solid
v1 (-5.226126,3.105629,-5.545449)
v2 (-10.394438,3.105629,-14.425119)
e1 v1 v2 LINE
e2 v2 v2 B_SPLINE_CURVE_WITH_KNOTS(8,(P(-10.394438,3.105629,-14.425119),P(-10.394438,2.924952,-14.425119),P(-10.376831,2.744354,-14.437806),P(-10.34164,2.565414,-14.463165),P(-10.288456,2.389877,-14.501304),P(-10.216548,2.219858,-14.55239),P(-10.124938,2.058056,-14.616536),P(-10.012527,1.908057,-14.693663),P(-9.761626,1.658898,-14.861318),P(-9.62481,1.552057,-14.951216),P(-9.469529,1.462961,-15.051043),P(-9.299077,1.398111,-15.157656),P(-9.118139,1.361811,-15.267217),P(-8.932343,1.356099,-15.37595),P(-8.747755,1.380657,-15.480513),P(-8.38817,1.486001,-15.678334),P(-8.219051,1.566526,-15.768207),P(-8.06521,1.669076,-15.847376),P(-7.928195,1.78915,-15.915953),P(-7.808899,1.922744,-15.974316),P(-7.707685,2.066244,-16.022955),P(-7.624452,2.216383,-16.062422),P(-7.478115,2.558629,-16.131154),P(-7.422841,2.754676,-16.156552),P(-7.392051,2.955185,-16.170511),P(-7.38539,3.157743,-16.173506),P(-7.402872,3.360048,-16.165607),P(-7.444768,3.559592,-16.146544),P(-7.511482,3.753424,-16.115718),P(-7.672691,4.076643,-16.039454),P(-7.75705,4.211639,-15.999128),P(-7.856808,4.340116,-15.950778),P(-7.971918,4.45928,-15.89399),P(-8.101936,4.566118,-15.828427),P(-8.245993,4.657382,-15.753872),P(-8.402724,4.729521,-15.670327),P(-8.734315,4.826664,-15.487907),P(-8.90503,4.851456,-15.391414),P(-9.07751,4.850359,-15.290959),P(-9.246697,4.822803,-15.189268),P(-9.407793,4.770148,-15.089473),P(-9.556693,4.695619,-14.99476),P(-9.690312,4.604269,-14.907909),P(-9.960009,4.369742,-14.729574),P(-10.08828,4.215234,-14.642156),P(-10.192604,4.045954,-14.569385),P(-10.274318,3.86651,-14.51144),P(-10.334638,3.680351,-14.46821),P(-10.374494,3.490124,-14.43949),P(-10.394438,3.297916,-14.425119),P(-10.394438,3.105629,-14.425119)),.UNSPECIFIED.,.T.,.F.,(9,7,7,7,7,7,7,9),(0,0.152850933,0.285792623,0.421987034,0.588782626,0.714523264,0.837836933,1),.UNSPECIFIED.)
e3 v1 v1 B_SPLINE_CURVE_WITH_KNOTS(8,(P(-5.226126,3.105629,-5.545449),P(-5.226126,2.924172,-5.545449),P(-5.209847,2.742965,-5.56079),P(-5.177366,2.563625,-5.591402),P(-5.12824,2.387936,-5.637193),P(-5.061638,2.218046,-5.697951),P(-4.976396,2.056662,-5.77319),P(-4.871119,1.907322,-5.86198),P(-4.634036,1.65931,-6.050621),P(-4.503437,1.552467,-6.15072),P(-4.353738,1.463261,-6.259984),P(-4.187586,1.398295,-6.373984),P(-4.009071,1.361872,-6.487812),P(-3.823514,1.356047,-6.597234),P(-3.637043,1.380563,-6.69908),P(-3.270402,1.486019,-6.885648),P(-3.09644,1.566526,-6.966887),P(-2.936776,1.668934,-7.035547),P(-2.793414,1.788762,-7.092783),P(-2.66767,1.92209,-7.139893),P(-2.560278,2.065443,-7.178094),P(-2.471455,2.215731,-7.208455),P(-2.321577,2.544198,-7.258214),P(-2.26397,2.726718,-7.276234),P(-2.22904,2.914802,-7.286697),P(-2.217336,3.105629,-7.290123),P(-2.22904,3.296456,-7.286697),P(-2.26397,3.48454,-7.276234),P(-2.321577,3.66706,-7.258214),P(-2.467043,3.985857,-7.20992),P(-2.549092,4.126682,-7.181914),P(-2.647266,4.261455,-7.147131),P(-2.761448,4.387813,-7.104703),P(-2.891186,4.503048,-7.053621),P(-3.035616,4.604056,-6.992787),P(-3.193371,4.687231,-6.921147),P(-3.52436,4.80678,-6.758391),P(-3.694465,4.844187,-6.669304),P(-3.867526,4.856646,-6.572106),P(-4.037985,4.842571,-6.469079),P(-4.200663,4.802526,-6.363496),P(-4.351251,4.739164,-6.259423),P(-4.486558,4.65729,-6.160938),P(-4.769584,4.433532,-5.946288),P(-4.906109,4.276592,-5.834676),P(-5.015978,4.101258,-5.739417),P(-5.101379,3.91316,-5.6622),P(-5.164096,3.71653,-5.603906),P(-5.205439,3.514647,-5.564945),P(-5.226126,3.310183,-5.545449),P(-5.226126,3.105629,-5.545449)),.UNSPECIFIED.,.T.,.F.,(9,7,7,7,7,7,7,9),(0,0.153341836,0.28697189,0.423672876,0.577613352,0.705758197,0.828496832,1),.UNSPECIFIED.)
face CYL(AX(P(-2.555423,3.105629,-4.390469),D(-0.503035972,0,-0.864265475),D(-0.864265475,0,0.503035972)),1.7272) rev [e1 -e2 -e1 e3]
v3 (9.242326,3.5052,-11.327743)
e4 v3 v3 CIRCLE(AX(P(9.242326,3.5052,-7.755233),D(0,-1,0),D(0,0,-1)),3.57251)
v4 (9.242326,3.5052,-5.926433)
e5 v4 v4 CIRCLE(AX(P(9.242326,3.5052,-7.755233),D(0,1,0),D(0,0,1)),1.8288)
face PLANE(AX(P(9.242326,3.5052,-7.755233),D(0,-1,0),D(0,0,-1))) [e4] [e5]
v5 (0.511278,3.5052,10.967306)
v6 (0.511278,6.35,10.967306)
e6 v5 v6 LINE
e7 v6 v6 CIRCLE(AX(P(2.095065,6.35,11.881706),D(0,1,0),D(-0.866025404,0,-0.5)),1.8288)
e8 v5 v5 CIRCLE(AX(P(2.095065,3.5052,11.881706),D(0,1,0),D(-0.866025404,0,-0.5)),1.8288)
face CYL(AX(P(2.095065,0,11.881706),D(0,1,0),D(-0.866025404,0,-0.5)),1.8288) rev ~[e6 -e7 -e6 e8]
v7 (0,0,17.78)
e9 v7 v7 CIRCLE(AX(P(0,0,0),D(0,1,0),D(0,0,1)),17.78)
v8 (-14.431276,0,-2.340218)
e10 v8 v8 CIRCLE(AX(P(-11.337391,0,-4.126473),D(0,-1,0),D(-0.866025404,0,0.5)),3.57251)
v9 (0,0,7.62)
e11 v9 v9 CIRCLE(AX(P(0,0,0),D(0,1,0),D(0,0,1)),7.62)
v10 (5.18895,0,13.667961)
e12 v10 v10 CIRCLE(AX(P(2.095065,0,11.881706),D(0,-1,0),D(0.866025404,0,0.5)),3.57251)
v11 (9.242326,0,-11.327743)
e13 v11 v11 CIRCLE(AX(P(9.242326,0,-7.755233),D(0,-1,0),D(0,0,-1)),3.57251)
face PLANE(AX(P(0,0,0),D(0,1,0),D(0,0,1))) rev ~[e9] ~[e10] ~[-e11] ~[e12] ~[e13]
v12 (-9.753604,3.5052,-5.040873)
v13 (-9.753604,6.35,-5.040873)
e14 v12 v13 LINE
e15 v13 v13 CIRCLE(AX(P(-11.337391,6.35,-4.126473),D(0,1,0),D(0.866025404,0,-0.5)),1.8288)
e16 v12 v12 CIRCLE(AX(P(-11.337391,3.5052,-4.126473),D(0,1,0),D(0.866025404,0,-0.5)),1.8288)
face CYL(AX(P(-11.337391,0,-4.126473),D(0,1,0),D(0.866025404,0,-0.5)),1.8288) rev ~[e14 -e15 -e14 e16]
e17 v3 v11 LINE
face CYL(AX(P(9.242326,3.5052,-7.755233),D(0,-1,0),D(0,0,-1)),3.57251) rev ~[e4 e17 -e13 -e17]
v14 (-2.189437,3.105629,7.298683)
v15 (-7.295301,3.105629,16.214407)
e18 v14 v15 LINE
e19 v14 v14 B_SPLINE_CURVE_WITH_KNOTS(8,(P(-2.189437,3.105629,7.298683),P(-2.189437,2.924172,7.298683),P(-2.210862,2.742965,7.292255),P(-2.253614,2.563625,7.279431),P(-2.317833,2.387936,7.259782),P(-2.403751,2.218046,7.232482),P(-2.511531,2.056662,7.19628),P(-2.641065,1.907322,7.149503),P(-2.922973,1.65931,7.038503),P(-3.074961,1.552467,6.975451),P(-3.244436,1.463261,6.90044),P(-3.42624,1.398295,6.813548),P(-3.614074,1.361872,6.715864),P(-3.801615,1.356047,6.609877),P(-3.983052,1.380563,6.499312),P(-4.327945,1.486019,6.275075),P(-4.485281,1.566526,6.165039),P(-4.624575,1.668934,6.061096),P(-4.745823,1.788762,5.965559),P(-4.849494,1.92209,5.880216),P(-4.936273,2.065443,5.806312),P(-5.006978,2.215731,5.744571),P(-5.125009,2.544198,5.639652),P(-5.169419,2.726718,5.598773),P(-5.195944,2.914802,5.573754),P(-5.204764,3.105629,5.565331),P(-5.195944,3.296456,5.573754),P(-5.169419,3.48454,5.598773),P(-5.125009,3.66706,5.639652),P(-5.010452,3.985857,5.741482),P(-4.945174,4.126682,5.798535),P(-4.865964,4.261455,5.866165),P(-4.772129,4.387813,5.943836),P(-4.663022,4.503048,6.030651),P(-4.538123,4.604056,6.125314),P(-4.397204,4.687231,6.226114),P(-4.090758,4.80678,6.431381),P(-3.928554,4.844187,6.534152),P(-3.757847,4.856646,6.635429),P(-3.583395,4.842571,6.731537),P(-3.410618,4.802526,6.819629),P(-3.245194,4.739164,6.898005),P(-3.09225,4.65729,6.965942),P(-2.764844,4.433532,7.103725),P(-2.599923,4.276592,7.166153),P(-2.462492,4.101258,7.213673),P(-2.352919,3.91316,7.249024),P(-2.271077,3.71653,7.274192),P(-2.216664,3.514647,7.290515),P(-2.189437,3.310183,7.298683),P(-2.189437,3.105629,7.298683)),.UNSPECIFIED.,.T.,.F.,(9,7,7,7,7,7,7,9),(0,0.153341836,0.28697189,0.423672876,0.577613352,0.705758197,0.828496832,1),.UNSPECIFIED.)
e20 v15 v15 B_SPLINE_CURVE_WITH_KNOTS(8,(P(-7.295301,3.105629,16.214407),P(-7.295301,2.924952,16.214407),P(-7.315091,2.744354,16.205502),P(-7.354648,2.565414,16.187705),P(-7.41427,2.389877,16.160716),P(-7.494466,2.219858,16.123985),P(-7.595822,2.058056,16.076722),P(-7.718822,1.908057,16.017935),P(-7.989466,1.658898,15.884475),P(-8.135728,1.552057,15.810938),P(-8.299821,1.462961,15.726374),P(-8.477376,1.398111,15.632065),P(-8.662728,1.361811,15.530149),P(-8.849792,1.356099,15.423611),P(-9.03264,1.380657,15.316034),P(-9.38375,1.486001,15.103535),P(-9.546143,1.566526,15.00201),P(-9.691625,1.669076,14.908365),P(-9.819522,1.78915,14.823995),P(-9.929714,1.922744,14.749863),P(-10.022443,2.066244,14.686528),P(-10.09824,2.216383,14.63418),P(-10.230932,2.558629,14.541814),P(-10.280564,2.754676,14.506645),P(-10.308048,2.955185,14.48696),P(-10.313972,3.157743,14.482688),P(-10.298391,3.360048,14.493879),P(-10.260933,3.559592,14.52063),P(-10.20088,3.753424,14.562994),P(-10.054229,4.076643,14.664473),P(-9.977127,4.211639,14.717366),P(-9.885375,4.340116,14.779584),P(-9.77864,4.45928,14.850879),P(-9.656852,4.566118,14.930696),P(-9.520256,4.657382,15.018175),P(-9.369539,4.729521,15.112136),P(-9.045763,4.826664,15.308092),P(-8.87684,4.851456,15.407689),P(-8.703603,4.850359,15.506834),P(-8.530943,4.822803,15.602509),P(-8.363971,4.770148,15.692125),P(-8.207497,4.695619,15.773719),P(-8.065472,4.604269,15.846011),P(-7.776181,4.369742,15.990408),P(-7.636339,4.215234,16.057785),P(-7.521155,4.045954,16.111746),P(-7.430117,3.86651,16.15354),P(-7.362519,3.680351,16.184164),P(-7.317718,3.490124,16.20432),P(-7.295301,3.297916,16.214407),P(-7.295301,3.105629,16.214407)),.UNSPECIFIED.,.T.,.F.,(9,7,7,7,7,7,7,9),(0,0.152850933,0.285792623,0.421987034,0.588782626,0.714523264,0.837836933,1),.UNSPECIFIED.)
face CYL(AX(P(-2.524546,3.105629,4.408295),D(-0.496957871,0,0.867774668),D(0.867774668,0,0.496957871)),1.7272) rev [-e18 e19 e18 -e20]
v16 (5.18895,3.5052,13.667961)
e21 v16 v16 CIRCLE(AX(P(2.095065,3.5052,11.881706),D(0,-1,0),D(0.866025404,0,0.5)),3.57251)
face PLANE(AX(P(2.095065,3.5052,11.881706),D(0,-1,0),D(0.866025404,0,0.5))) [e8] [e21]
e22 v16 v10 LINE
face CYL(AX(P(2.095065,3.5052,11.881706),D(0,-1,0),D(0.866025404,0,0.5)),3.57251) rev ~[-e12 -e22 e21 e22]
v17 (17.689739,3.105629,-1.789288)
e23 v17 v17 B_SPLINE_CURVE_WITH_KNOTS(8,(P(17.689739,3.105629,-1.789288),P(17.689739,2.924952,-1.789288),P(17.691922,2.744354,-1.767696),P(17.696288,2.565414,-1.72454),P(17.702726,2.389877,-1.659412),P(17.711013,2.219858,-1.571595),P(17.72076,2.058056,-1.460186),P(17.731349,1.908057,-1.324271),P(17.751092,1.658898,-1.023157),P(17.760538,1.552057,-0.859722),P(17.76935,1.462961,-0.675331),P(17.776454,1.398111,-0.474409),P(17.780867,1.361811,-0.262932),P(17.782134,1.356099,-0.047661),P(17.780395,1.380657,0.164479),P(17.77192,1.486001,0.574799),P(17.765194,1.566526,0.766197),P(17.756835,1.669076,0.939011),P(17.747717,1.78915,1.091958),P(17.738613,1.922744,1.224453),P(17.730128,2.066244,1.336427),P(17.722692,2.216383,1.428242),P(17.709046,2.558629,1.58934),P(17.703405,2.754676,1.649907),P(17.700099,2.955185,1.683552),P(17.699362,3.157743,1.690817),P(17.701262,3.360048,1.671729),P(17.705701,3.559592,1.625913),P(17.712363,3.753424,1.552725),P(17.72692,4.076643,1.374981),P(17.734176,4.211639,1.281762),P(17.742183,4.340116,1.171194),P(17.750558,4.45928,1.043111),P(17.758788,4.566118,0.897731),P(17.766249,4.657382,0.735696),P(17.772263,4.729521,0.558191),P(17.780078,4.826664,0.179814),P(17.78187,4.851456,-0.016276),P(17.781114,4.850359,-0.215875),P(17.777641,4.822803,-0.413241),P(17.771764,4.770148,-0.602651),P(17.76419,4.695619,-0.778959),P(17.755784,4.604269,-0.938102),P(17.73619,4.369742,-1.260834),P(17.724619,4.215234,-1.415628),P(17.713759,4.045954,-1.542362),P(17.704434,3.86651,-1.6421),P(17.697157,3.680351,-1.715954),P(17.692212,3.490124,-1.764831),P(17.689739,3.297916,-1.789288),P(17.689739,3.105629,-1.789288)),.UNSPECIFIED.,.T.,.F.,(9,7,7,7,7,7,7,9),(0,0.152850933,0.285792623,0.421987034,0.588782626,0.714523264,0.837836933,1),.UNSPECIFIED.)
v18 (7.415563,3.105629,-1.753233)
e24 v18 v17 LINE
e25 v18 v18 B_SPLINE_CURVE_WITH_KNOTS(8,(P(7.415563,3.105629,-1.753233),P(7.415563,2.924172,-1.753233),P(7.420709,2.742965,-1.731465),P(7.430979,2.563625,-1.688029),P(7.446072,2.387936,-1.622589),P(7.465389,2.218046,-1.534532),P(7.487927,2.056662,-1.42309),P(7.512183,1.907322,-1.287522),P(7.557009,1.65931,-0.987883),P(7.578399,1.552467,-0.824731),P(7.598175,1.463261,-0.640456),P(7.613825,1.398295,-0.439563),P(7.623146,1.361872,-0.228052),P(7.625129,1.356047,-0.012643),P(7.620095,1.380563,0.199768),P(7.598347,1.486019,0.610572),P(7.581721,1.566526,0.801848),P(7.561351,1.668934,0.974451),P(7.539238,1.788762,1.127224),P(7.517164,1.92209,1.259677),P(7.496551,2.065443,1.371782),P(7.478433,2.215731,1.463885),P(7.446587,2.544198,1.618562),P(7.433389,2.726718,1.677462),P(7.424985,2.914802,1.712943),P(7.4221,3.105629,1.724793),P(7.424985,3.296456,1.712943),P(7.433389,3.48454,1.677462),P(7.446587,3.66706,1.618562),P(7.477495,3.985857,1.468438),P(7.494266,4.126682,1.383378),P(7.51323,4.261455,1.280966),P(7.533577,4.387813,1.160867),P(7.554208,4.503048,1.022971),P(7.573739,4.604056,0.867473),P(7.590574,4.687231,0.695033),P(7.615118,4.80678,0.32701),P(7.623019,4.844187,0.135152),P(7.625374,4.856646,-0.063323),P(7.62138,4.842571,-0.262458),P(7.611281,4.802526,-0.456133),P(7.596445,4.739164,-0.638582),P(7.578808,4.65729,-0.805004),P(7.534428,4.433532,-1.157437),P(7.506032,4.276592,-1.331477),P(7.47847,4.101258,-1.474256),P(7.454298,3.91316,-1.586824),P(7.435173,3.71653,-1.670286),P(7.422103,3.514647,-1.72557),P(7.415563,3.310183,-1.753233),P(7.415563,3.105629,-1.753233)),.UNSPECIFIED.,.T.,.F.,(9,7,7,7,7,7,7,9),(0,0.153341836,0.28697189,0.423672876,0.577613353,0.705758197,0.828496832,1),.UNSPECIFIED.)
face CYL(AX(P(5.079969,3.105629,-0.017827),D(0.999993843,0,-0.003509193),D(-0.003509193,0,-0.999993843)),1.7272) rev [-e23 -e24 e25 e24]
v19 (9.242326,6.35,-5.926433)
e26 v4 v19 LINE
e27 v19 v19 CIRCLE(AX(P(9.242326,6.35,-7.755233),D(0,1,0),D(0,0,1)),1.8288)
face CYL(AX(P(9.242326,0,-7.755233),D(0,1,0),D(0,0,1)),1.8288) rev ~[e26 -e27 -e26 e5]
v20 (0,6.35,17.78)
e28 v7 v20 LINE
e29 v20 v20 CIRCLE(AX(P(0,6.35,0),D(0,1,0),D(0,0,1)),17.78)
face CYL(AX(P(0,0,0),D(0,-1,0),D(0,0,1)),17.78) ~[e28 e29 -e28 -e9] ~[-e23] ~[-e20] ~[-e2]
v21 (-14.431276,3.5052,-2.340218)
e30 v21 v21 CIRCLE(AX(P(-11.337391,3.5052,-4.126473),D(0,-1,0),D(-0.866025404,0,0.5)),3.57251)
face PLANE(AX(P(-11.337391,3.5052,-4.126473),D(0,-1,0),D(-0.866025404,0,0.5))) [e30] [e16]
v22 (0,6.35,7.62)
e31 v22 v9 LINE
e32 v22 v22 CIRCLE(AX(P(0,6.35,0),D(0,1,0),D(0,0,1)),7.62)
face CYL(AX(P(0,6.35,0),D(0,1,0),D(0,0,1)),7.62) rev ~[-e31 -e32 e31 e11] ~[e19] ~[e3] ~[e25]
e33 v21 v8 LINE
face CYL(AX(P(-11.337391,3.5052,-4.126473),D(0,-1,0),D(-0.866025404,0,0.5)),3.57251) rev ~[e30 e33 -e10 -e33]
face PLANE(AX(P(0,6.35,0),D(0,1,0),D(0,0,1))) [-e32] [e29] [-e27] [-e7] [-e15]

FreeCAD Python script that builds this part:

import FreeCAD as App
import Part
import Sketcher

V = App.Vector
Q = App.Units.Quantity

doc = App.newDocument("Part")
body = doc.addObject("PartDesign::Body", "Body")

sketch1 = body.newObject("Sketcher::SketchObject", "Sketch")
sketch1.AttachmentSupport = (doc.getObject("XZ_Plane"), [""])
sketch1.MapMode = "FlatFace"
sketch1.addGeometry(Part.Circle(V(0, 0, 0), V(0, 0, 1), 18), False)
sketch1.addConstraint(Sketcher.Constraint("Coincident", 0, 3, -1, 1))
sketch1.addConstraint(Sketcher.Constraint("Diameter", 0, Q("1.4 in")))
pad1 = body.newObject("PartDesign::Pad", "Pad")
pad1.Profile = sketch1
pad1.Length = Q("0.25 in")
pad1.Reversed = True

sketch2 = body.newObject("Sketcher::SketchObject", "Sketch001")
sketch2.AttachmentSupport = (doc.getObject("XZ_Plane"), [""])
sketch2.MapMode = "FlatFace"
sketch2.AttachmentOffset = App.Placement(V(0, 0, -3.105629), App.Rotation())
sketch2.addGeometry(Part.LineSegment(V(-1.8, 3.2, 0), V(-8.8, 15.4, 0)), False)
sketch2.addGeometry(Part.LineSegment(V(-8.8, 15.4, 0), V(-7.3, 16.3, 0)), False)
sketch2.addGeometry(Part.LineSegment(V(-7.3, 16.3, 0), V(-1, 5.3, 0)), False)
sketch2.addGeometry(Part.LineSegment(V(-1, 5.3, 0), V(-1.8, 3.2, 0)), False)
sketch2.addGeometry(Part.LineSegment(V(-8.8, 15.4, 0), V(-1.8, 3.2, 0)), True)
sketch2.addConstraint(Sketcher.Constraint("Coincident", 0, 2, 1, 1))
sketch2.addConstraint(Sketcher.Constraint("Coincident", 1, 2, 2, 1))
sketch2.addConstraint(Sketcher.Constraint("Coincident", 2, 2, 3, 1))
sketch2.addConstraint(Sketcher.Constraint("Coincident", 3, 2, 0, 1))
sketch2.addConstraint(Sketcher.Constraint("Coincident", 4, 1, 0, 2))
sketch2.addConstraint(Sketcher.Constraint("Coincident", 4, 2, 3, 2))
sketch2.addConstraint(Sketcher.Constraint("Perpendicular", 0, 1))
sketch2.addConstraint(Sketcher.Constraint("Perpendicular", 1, 2))
sketch2.addConstraint(Sketcher.Constraint("Distance", 2, Q("0.5 in")))
sketch2.addConstraint(Sketcher.Constraint("Distance", 1, Q("0.068 in")))
sketch2.addConstraint(Sketcher.Constraint("Distance", 3, Q("2.254699 mm")))
sketch2.addConstraint(Sketcher.Constraint("DistanceX", 0, 2, -1, 1, Q("8.835911 mm")))
sketch2.addConstraint(Sketcher.Constraint("DistanceX", 1, 2, -1, 1, Q("7.337091 mm")))
sketch2.addConstraint(Sketcher.Constraint("DistanceY", -1, 1, 1, 2, Q("16.287379 mm")))
groove = body.newObject("PartDesign::Groove", "Groove")
groove.Profile = sketch2
groove.ReferenceAxis = (sketch2, ["Axis0"])
groove.Angle = 360
doc.recompute()

polarpattern = body.newObject("PartDesign::PolarPattern", "PolarPattern")
polarpattern.Originals = [groove]
polarpattern.Axis = (doc.getObject("Y_Axis"), [""])
polarpattern.Angle = 360
polarpattern.Occurrences = 3
body.Tip = polarpattern

sketch3 = body.newObject("Sketcher::SketchObject", "Sketch002")
sketch3.AttachmentSupport = (doc.getObject("XZ_Plane"), [""])
sketch3.MapMode = "FlatFace"
sketch3.AttachmentOffset = App.Placement(V(0, 0, -0.25 * 25.4), App.Rotation())
sketch3.addGeometry(Part.Circle(V(0, 0, 0), V(0, 0, 1), 8), False)
sketch3.addConstraint(Sketcher.Constraint("Coincident", 0, 3, -1, 1))
sketch3.addConstraint(Sketcher.Constraint("Diameter", 0, Q("0.6 in")))
pocket1 = body.newObject("PartDesign::Pocket", "Pocket")
pocket1.Profile = sketch3
pocket1.Type = "UpToFirst"
pocket1.Reversed = True

sketch4 = body.newObject("Sketcher::SketchObject", "Sketch003")
sketch4.AttachmentSupport = (doc.getObject("XZ_Plane"), [""])
sketch4.MapMode = "FlatFace"
sketch4.addGeometry(Part.Circle(V(9.2, -7.8, 0), V(0, 0, 1), 1.8), False)
sketch4.addConstraint(Sketcher.Constraint("Diameter", 0, Q("0.144 in")))
sketch4.addConstraint(Sketcher.Constraint("DistanceX", -1, 1, 0, 3, Q("9.242326 mm")))
sketch4.addConstraint(Sketcher.Constraint("DistanceY", 0, 3, -1, 1, Q("7.755233 mm")))
doc.recompute()
hole = body.newObject("PartDesign::Hole", "Hole")
hole.Profile = sketch4
hole.ThreadType = "None"
hole.Diameter = Q("0.144 in")
hole.DepthType = "ThroughAll"
hole.HoleCutType = "Counterbore"
hole.HoleCutDiameter = Q("0.2813 in")
hole.HoleCutDepth = Q("0.138 in")
doc.recompute()

polarpattern2 = body.newObject("PartDesign::PolarPattern", "PolarPattern001")
polarpattern2.Originals = [hole]
polarpattern2.Axis = (doc.getObject("Y_Axis"), [""])
polarpattern2.Angle = 360
polarpattern2.Occurrences = 3
body.Tip = polarpattern2

doc.recompute()
